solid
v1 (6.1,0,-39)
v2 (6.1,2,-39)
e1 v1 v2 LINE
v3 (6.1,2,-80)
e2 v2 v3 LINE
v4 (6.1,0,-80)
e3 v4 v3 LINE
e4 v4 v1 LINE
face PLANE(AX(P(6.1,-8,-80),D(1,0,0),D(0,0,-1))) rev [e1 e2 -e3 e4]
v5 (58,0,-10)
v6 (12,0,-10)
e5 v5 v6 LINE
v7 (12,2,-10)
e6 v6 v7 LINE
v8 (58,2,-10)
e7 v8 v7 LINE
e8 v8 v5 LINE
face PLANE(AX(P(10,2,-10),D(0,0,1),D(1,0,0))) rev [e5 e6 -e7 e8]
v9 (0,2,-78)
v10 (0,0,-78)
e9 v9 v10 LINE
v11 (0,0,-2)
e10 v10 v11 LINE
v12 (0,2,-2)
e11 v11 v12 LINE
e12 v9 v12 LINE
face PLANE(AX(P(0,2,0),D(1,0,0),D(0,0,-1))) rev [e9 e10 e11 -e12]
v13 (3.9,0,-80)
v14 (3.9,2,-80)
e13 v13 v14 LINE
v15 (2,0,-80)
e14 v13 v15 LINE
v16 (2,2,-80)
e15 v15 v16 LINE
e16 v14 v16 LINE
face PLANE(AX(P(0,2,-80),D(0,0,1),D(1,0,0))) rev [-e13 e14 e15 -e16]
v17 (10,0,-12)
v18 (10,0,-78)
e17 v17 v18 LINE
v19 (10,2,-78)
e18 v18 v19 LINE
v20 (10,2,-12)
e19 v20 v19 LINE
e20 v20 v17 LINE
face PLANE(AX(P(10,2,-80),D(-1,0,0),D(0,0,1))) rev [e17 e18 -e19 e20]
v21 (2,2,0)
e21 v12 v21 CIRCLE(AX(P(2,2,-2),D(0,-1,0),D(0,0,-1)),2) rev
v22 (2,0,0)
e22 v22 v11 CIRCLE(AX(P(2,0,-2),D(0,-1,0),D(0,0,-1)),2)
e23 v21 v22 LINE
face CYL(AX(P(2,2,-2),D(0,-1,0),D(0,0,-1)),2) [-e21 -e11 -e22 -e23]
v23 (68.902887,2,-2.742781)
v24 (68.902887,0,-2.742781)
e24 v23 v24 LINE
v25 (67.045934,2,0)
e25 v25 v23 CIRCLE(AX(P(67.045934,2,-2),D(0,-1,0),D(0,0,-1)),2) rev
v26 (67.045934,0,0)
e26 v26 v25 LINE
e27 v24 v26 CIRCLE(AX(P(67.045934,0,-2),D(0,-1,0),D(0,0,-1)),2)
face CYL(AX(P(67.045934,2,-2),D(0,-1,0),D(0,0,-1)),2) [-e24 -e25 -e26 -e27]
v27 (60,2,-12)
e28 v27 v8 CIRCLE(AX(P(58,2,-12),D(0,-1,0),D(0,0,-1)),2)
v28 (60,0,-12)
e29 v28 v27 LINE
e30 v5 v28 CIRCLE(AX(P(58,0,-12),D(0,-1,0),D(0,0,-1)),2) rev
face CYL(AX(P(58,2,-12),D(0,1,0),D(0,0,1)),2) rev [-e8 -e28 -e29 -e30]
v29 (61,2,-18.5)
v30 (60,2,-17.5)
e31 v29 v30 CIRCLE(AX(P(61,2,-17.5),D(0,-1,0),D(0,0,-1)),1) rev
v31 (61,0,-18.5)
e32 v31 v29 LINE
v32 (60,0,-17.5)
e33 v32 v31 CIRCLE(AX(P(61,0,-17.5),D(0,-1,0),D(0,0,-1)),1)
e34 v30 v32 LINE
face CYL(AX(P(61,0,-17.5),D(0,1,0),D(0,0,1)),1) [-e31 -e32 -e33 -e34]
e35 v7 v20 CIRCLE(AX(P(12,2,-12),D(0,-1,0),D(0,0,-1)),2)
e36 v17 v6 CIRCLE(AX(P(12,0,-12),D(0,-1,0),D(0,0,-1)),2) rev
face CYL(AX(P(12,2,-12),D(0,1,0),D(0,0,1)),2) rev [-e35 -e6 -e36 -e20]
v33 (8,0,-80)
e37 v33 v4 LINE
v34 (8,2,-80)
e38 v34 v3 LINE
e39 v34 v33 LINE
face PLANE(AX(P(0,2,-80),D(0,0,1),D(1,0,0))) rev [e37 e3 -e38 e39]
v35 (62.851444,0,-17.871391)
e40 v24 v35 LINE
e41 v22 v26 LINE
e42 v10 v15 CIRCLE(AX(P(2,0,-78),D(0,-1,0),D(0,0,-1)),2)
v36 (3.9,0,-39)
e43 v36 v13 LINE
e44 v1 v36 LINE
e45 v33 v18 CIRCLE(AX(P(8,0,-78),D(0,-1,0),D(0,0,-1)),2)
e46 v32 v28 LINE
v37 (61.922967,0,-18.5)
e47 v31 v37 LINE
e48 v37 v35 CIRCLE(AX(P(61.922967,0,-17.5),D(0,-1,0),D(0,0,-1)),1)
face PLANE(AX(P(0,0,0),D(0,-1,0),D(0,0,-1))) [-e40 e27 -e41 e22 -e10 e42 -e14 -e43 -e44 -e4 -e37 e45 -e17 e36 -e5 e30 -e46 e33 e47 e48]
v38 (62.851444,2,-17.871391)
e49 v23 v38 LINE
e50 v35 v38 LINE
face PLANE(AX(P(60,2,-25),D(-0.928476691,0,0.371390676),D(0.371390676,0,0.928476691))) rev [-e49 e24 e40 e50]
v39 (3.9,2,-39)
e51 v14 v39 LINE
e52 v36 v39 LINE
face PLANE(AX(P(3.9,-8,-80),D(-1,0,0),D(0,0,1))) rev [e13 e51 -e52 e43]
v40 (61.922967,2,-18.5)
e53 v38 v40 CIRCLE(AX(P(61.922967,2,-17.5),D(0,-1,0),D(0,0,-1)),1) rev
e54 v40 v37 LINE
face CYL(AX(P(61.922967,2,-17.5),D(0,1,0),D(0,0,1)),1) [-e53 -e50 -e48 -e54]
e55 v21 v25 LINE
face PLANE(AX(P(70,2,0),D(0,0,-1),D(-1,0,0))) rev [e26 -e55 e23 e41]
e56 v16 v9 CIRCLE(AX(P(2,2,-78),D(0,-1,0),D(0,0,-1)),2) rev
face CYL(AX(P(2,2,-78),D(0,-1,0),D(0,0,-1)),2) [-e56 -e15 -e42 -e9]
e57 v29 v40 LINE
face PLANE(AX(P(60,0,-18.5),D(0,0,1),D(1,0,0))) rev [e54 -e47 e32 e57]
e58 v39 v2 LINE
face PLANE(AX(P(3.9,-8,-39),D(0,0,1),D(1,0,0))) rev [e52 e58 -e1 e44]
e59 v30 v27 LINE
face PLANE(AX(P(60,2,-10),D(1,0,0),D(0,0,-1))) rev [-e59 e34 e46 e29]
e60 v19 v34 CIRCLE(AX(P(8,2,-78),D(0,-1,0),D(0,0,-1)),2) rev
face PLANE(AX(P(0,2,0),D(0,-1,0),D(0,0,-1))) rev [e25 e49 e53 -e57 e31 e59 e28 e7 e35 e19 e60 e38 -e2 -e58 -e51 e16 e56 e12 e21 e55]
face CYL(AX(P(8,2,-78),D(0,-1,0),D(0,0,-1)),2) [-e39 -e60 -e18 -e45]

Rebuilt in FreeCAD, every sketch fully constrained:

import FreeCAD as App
import Part
import Sketcher

V = App.Vector
Q = App.Units.Quantity


def edges_at(feature, points):
    """Names of the edges that pass closest to the given points."""
    edges = feature.Shape.Edges
    near = lambda p: min(range(len(edges)), key=lambda i: edges[i].distToShape(Part.Vertex(*p))[0])
    return sorted({f"Edge{near(p) + 1}" for p in points})

doc = App.newDocument("Part")
body = doc.addObject("PartDesign::Body", "Body")

# Sketch on XZ plane
sketch1 = doc.addObject("Sketcher::SketchObject", "Sketch")
body.addObject(sketch1)
sketch1.AttachmentSupport = (doc.XZ_Plane, [""])
sketch1.MapMode = "FlatFace"
sketch1.addGeometry(Part.LineSegment(V(0, -80, 0), V(0, 0, 0)), False)
sketch1.addGeometry(Part.LineSegment(V(0, 0, 0), V(70, 0, 0)), False)
sketch1.addGeometry(Part.LineSegment(V(70, 0, 0), V(60, -25, 0)), False)
sketch1.addGeometry(Part.LineSegment(V(60, -25, 0), V(60, -10, 0)), False)
sketch1.addGeometry(Part.LineSegment(V(60, -10, 0), V(10, -10, 0)), False)
sketch1.addGeometry(Part.LineSegment(V(10, -10, 0), V(10, -80, 0)), False)
sketch1.addGeometry(Part.LineSegment(V(10, -80, 0), V(0, -80, 0)), False)
sketch1.addConstraint(Sketcher.Constraint("Coincident", 0, 2, 1, 1))
sketch1.addConstraint(Sketcher.Constraint("Coincident", 1, 2, 2, 1))
sketch1.addConstraint(Sketcher.Constraint("Coincident", 2, 2, 3, 1))
sketch1.addConstraint(Sketcher.Constraint("Coincident", 3, 2, 4, 1))
sketch1.addConstraint(Sketcher.Constraint("Coincident", 4, 2, 5, 1))
sketch1.addConstraint(Sketcher.Constraint("Coincident", 5, 2, 6, 1))
sketch1.addConstraint(Sketcher.Constraint("Coincident", 6, 2, 0, 1))
sketch1.addConstraint(Sketcher.Constraint("Vertical", 0))
sketch1.addConstraint(Sketcher.Constraint("Horizontal", 1))
sketch1.addConstraint(Sketcher.Constraint("Vertical", 3))
sketch1.addConstraint(Sketcher.Constraint("Horizontal", 4))
sketch1.addConstraint(Sketcher.Constraint("Vertical", 5))
sketch1.addConstraint(Sketcher.Constraint("Horizontal", 6))
sketch1.addConstraint(Sketcher.Constraint("Coincident", 0, 2, -1, 1))
sketch1.addConstraint(Sketcher.Constraint("Equal", 1, 5))
sketch1.addConstraint(Sketcher.Constraint("DistanceX", 1, 1, 1, 2, Q("70 mm")))
sketch1.addConstraint(Sketcher.Constraint("DistanceX", 4, 2, 4, 1, Q("50 mm")))
sketch1.addConstraint(Sketcher.Constraint("DistanceX", 6, 2, 6, 1, Q("10 mm")))
sketch1.addConstraint(Sketcher.Constraint("DistanceY", 0, 1, 0, 2, Q("80 mm")))
sketch1.addConstraint(Sketcher.Constraint("DistanceY", 3, 1, 3, 2, Q("15 mm")))
pad1 = doc.addObject("PartDesign::Pad", "Pad")
body.addObject(pad1)
pad1.Profile = sketch1
pad1.Length = 2
pad1.Reversed = True
doc.recompute()

fillet = doc.addObject("PartDesign::Fillet", "Fillet")
body.addObject(fillet)
fillet.Base = (pad1, edges_at(pad1, [
    (0, 1, 0),
    (0, 1, -80),
    (10, 1, -80),
    (10, 1, -10),
    (60, 1, -10),
    (70, 1, 0),
]))
fillet.Radius = 2

# Sketch on XZ plane
sketch2 = doc.addObject("Sketcher::SketchObject", "Sketch001")
body.addObject(sketch2)
sketch2.AttachmentSupport = (doc.XZ_Plane, [""])
sketch2.MapMode = "FlatFace"
sketch2.AttachmentOffset = App.Placement(V(0, 0, -2), App.Rotation())
sketch2.addGeometry(Part.LineSegment(V(60, -18.5, 0), V(62.6, -18.5, 0)), False)
sketch2.addGeometry(Part.LineSegment(V(62.6, -18.5, 0), V(60, -25, 0)), False)
sketch2.addGeometry(Part.LineSegment(V(60, -25, 0), V(60, -18.5, 0)), False)
sketch2.addConstraint(Sketcher.Constraint("Coincident", 0, 2, 1, 1))
sketch2.addConstraint(Sketcher.Constraint("Coincident", 1, 2, 2, 1))
sketch2.addConstraint(Sketcher.Constraint("Coincident", 2, 2, 0, 1))
sketch2.addConstraint(Sketcher.Constraint("Horizontal", 0))
sketch2.addConstraint(Sketcher.Constraint("Vertical", 2))
sketch2.addConstraint(Sketcher.Constraint("DistanceX", 0, 1, 0, 2, Q("2.6 mm")))
sketch2.addConstraint(Sketcher.Constraint("DistanceY", 2, 1, 2, 2, Q("6.5 mm")))
sketch2.addConstraint(Sketcher.Constraint("DistanceX", -1, 1, 1, 2, Q("60 mm")))
sketch2.addConstraint(Sketcher.Constraint("DistanceY", 1, 2, -1, 1, Q("25 mm")))
pocket1 = doc.addObject("PartDesign::Pocket", "Pocket")
body.addObject(pocket1)
pocket1.Profile = sketch2
pocket1.Type = "ThroughAll"
pocket1.Reversed = True
doc.recompute()

fillet2 = doc.addObject("PartDesign::Fillet", "Fillet001")
body.addObject(fillet2)
fillet2.Base = (pocket1, edges_at(pocket1, [(60, 1, -18.5), (62.6, 1, -18.5)]))
fillet2.Radius = 1

# Sketch on XZ plane
sketch3 = doc.addObject("Sketcher::SketchObject", "Sketch002")
body.addObject(sketch3)
sketch3.AttachmentSupport = (doc.XZ_Plane, [""])
sketch3.MapMode = "FlatFace"
sketch3.AttachmentOffset = App.Placement(V(0, 0, -2), App.Rotation())
sketch3.addGeometry(Part.LineSegment(V(3.9, -80, 0), V(3.9, -39, 0)), False)
sketch3.addGeometry(Part.LineSegment(V(3.9, -39, 0), V(6.1, -39, 0)), False)
sketch3.addGeometry(Part.LineSegment(V(6.1, -39, 0), V(6.1, -80, 0)), False)
sketch3.addGeometry(Part.LineSegment(V(6.1, -80, 0), V(3.9, -80, 0)), False)
sketch3.addConstraint(Sketcher.Constraint("Coincident", 0, 2, 1, 1))
sketch3.addConstraint(Sketcher.Constraint("Coincident", 1, 2, 2, 1))
sketch3.addConstraint(Sketcher.Constraint("Coincident", 2, 2, 3, 1))
sketch3.addConstraint(Sketcher.Constraint("Coincident", 3, 2, 0, 1))
sketch3.addConstraint(Sketcher.Constraint("Vertical", 0))
sketch3.addConstraint(Sketcher.Constraint("Horizontal", 1))
sketch3.addConstraint(Sketcher.Constraint("Vertical", 2))
sketch3.addConstraint(Sketcher.Constraint("Horizontal", 3))
sketch3.addConstraint(Sketcher.Constraint("DistanceY", 0, 1, 0, 2, Q("41 mm")))
sketch3.addConstraint(Sketcher.Constraint("DistanceX", 1, 1, 1, 2, Q("2.2 mm")))
sketch3.addConstraint(Sketcher.Constraint("DistanceY", 0, 2, -1, 1, Q("39 mm")))
sketch3.addConstraint(Sketcher.Constraint("DistanceX", -1, 1, 0, 2, Q("3.9 mm")))
pocket2 = doc.addObject("PartDesign::Pocket", "Pocket001")
body.addObject(pocket2)
pocket2.Profile = sketch3
pocket2.Length = 10
pocket2.Reversed = True

doc.recompute()
